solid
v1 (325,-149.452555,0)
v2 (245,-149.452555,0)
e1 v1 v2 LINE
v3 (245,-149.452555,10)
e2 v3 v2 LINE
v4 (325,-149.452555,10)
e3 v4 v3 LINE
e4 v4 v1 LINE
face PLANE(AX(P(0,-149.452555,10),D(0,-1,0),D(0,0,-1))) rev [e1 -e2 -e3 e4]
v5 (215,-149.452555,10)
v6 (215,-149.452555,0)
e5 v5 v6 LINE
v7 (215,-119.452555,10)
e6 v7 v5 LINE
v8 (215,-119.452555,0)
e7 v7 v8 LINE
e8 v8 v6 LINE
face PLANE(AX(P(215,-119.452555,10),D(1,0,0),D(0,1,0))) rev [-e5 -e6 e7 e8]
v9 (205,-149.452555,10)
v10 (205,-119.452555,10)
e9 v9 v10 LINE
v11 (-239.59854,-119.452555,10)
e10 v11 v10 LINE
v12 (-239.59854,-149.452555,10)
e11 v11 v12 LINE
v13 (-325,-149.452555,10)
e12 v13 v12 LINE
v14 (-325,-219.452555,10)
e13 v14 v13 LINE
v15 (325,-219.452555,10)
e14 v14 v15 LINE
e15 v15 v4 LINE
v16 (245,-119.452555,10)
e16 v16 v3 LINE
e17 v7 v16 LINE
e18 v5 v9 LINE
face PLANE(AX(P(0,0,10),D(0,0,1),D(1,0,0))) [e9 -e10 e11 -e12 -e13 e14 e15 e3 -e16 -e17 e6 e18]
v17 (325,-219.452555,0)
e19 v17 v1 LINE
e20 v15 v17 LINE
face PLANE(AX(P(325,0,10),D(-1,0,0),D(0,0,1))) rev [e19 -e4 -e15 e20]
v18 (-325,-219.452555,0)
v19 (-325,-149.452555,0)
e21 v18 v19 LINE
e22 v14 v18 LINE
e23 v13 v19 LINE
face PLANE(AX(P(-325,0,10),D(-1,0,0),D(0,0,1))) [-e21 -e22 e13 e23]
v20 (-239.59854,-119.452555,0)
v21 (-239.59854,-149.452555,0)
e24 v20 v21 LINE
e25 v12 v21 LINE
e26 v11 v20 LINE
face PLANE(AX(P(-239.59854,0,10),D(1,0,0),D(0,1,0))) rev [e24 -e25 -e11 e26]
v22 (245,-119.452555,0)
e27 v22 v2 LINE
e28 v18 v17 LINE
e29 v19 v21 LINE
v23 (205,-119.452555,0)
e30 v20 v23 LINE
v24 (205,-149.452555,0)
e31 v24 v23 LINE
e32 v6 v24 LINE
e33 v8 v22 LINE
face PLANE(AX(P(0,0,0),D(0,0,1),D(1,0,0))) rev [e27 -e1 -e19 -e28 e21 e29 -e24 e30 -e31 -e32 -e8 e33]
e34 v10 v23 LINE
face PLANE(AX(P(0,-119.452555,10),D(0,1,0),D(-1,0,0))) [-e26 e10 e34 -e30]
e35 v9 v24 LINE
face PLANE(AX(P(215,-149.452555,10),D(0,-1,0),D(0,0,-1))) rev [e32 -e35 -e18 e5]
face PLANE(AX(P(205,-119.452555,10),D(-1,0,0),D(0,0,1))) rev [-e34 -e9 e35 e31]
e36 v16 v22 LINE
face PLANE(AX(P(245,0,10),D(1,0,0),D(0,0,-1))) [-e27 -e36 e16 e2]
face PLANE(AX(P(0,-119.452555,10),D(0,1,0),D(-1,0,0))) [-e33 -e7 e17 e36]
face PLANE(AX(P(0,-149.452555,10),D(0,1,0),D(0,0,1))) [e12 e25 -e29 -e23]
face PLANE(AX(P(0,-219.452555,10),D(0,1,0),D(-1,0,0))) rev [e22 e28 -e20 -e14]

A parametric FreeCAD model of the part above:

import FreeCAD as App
import Part
import Sketcher
from FreeCAD import Vector


def add_polygon(sketch, points):
    """Adds a closed chain of lines whose ends are joined by coincident constraints."""
    first, n = sketch.GeometryCount, len(points)
    for a, b in zip(points, points[1:] + points[:1]):
        sketch.addGeometry(Part.LineSegment(App.Vector(*a, 0), App.Vector(*b, 0)), False)
    for i in range(n):
        sketch.addConstraint(Sketcher.Constraint("Coincident", first + i, 2, first + (i + 1) % n, 1))

doc = App.newDocument("Part")
body = doc.addObject("PartDesign::Body", "Body")

# Sketch on XY plane
sketch1 = body.newObject("Sketcher::SketchObject", "Sketch")
sketch1.AttachmentSupport = (doc.getObject("XY_Plane"), [""])
sketch1.MapMode = "FlatFace"
add_polygon(sketch1, [(-325, -149), (-325, -219), (325, -219), (325, -149), (245, -149), (245, -119), (-240, -119), (-240, -149)])  # lines 0-7
sketch1.addConstraint(Sketcher.Constraint("Vertical", 0))
sketch1.addConstraint(Sketcher.Constraint("Horizontal", 1))
sketch1.addConstraint(Sketcher.Constraint("Vertical", 2))
sketch1.addConstraint(Sketcher.Constraint("Horizontal", 3))
sketch1.addConstraint(Sketcher.Constraint("Vertical", 4))
sketch1.addConstraint(Sketcher.Constraint("Horizontal", 5))
sketch1.addConstraint(Sketcher.Constraint("Vertical", 6))
sketch1.addConstraint(Sketcher.Constraint("Horizontal", 7))
sketch1.addConstraint(Sketcher.Constraint("Symmetric", 2, 2, 7, 2, -2))
sketch1.addConstraint(Sketcher.Constraint("DistanceX", 1, 1, 1, 2, 650.0))
sketch1.addConstraint(Sketcher.Constraint("DistanceX", 3, 2, 3, 1, 80.0))
sketch1.addConstraint(Sketcher.Constraint("DistanceY", 0, 2, 0, 1, 70.0))
sketch1.addConstraint(Sketcher.Constraint("DistanceY", 4, 1, 4, 2, 30.0))
sketch1.addConstraint(Sketcher.Constraint("DistanceX", 5, 2, 5, 1, 484.59854))
sketch1.addConstraint(Sketcher.Constraint("DistanceY", 0, 2, -1, 1, 219.452555))
pad1 = body.newObject("PartDesign::Pad", "Pad")
pad1.Profile = sketch1
pad1.Length = 10

# Sketch on XY plane
sketch2 = body.newObject("Sketcher::SketchObject", "Sketch001")
sketch2.AttachmentSupport = (doc.getObject("XY_Plane"), [""])
sketch2.MapMode = "FlatFace"
add_polygon(sketch2, [(215, -119), (215, -149), (205, -149), (205, -119)])  # lines 0-3
sketch2.addConstraint(Sketcher.Constraint("Vertical", 0))
sketch2.addConstraint(Sketcher.Constraint("Horizontal", 1))
sketch2.addConstraint(Sketcher.Constraint("Vertical", 2))
sketch2.addConstraint(Sketcher.Constraint("Horizontal", 3))
sketch2.addConstraint(Sketcher.Constraint("DistanceX", 1, 2, 1, 1, 10.0))
sketch2.addConstraint(Sketcher.Constraint("DistanceY", 0, 2, 0, 1, 30.0))
sketch2.addConstraint(Sketcher.Constraint("DistanceX", -1, 1, 0, 2, 215.0))
sketch2.addConstraint(Sketcher.Constraint("DistanceY", 0, 2, -1, 1, 149.452555))
pocket1 = body.newObject("PartDesign::Pocket", "Pocket")
pocket1.Profile = sketch2
pocket1.Type = "ThroughAll"
pocket1.Reversed = True

doc.recompute()
